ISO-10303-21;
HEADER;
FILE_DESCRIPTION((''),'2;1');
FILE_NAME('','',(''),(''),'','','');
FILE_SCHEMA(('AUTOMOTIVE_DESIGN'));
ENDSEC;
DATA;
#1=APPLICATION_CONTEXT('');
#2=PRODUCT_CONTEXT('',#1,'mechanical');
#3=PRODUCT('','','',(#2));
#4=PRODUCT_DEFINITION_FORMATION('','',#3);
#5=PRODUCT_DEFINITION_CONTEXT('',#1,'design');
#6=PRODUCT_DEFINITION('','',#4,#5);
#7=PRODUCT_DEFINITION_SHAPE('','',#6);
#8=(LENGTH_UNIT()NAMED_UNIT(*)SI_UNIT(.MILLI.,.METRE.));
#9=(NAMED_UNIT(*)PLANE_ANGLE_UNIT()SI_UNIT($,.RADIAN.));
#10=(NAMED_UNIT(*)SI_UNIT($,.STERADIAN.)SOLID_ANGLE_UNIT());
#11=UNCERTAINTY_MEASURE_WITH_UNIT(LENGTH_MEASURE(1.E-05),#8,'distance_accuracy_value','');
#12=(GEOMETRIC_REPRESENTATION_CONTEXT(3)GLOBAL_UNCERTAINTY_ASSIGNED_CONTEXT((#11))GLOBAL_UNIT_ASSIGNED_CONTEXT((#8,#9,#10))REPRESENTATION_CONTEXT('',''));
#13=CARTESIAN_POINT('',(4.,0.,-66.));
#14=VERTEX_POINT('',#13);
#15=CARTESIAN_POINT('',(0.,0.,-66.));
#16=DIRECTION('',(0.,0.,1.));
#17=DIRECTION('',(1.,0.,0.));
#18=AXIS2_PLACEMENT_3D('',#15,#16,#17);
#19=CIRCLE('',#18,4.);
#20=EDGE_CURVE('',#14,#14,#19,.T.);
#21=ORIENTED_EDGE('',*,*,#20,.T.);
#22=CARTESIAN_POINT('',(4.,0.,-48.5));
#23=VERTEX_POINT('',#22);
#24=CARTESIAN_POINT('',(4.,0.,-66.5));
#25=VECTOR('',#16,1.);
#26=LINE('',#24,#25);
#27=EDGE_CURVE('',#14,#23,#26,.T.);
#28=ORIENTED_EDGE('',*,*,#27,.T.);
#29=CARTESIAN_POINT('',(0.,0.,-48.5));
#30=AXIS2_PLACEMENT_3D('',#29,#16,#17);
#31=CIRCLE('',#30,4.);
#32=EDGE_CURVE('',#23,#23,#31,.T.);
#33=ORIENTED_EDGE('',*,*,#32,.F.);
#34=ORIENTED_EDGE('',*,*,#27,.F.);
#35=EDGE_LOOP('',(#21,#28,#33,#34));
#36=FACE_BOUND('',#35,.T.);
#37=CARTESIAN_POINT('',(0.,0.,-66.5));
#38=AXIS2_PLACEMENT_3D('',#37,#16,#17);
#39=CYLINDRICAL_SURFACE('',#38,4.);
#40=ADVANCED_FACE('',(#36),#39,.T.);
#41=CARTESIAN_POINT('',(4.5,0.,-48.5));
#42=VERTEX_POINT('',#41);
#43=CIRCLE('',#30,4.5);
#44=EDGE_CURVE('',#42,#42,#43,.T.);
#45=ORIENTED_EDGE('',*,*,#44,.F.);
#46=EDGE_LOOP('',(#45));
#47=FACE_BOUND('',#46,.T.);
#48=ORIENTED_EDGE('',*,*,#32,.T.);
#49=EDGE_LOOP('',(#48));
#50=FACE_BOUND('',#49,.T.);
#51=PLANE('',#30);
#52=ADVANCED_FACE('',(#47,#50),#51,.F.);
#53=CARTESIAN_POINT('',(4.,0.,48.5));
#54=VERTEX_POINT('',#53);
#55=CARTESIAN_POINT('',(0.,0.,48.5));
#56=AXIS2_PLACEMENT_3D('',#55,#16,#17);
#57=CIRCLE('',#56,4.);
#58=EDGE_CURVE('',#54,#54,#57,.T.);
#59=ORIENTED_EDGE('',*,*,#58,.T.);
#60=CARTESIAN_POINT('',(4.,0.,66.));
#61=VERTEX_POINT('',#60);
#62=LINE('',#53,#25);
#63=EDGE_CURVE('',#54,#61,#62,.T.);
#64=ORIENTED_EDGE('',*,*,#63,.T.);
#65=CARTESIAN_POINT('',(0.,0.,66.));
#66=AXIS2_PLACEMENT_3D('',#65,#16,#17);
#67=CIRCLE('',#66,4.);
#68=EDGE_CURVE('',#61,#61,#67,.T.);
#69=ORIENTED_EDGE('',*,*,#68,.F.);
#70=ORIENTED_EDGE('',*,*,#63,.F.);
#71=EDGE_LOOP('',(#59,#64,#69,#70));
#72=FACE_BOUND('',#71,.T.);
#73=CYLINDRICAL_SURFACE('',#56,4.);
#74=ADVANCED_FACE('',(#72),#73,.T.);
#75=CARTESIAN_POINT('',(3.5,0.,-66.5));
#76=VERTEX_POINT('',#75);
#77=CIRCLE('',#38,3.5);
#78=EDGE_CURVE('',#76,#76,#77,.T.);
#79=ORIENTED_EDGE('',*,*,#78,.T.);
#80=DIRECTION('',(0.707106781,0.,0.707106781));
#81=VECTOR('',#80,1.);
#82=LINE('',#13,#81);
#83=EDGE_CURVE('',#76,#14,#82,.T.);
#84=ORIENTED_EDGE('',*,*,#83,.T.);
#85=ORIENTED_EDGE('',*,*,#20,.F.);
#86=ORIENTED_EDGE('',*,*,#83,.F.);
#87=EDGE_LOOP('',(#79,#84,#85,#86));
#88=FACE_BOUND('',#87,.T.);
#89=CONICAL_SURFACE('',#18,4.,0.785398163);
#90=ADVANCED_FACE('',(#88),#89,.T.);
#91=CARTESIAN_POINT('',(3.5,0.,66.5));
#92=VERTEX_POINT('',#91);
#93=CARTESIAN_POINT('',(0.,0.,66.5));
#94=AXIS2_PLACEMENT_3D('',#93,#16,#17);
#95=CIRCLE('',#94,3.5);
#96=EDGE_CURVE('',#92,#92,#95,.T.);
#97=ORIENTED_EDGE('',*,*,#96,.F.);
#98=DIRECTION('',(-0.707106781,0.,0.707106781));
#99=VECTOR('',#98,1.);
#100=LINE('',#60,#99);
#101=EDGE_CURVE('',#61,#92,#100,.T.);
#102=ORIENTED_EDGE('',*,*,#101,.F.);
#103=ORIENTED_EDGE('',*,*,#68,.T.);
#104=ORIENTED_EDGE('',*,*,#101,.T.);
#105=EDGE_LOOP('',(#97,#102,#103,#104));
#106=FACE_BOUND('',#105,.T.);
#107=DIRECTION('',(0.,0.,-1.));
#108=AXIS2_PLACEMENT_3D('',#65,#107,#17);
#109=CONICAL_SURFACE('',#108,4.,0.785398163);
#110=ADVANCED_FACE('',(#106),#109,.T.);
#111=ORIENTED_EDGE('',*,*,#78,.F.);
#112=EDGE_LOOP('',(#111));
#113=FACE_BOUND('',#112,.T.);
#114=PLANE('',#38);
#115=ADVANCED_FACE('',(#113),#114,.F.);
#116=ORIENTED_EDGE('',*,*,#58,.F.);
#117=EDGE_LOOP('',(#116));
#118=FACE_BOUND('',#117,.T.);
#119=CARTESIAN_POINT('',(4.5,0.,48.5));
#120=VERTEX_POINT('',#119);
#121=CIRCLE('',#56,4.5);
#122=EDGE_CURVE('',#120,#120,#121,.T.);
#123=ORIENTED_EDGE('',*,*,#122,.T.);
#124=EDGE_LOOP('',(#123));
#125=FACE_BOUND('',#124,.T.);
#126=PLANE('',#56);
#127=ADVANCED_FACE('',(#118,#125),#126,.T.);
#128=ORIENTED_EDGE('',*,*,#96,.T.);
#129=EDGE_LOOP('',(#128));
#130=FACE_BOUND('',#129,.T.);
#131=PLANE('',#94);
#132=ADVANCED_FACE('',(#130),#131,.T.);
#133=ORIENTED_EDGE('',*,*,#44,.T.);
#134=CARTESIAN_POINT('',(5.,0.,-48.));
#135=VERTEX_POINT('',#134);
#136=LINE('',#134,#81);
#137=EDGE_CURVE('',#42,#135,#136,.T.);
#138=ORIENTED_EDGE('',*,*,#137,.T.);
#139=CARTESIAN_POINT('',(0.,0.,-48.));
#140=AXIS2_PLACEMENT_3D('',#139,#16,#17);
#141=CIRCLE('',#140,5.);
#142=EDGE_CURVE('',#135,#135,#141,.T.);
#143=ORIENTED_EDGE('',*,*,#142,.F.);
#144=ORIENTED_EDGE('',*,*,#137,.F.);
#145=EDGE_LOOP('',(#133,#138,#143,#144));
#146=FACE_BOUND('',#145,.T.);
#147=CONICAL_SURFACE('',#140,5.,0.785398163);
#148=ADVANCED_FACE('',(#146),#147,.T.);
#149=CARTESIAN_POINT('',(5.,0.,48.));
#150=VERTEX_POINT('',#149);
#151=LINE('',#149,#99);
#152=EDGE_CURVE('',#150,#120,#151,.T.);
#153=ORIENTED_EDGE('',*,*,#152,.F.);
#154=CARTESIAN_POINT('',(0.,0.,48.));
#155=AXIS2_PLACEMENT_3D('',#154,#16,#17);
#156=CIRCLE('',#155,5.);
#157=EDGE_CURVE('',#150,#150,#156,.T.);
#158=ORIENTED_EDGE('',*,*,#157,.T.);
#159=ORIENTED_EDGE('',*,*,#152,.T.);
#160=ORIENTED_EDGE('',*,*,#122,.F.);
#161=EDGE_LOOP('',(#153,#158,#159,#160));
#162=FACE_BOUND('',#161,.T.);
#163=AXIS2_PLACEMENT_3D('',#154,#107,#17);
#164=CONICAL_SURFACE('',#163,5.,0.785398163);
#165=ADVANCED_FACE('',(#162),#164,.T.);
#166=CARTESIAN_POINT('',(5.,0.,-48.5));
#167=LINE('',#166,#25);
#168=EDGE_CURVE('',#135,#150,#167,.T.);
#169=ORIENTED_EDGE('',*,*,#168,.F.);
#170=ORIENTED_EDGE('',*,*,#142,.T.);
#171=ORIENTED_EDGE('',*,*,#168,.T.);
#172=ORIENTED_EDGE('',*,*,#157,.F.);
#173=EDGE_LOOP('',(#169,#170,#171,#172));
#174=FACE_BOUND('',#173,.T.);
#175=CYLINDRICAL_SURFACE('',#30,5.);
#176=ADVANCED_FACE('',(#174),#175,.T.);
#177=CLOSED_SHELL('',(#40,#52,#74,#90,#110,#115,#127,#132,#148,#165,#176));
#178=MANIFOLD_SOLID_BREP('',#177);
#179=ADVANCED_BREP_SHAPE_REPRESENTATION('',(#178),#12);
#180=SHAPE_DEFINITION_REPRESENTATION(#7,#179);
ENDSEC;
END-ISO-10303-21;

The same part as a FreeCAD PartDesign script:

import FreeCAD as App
import Part
import Sketcher
from FreeCAD import Vector


def edges_at(feature, points):
    """Names of the edges that pass closest to the given points."""
    edges = feature.Shape.Edges
    near = lambda p: min(range(len(edges)), key=lambda i: edges[i].distToShape(Part.Vertex(*p))[0])
    return sorted({f"Edge{near(p) + 1}" for p in points})

doc = App.newDocument("Part")
params = doc.addObject("Spreadsheet::Sheet", "Params")
for row, (alias, value) in enumerate([
    ("sketch1_height", "18 mm"),
    ("sketch1_height2", "97 mm"),
    ("sketch1_width", "4 mm"),
    ("sketch1_width2", "1 mm"),
    ("revolution_angle", "360 deg"),
    ("chamfer_size", "0.5 mm"),
], start=1):
    params.set(f"A{row}", alias)
    params.set(f"B{row}", "=" + value)
    params.setAlias(f"B{row}", alias)

body = doc.addObject("PartDesign::Body", "Body")

# Sketch on XZ plane
sketch1 = body.newObject("Sketcher::SketchObject", "Sketch")
sketch1.AttachmentSupport = (doc.getObject("XZ_Plane"), [""])
sketch1.MapMode = "FlatFace"
sketch1.addGeometry(Part.LineSegment(Vector(0, -66.5, 0), Vector(0, 66.5, 0)), False)
sketch1.addGeometry(Part.LineSegment(Vector(0, 66.5, 0), Vector(4, 66.5, 0)), False)
sketch1.addGeometry(Part.LineSegment(Vector(4, 66.5, 0), Vector(4, 48.5, 0)), False)
sketch1.addGeometry(Part.LineSegment(Vector(4, 48.5, 0), Vector(5, 48.5, 0)), False)
sketch1.addGeometry(Part.LineSegment(Vector(5, 48.5, 0), Vector(5, -48.5, 0)), False)
sketch1.addGeometry(Part.LineSegment(Vector(5, -48.5, 0), Vector(4, -48.5, 0)), False)
sketch1.addGeometry(Part.LineSegment(Vector(4, -48.5, 0), Vector(4, -66.5, 0)), False)
sketch1.addGeometry(Part.LineSegment(Vector(4, -66.5, 0), Vector(0, -66.5, 0)), False)
sketch1.addConstraint(Sketcher.Constraint("Coincident", 0, 2, 1, 1))
sketch1.addConstraint(Sketcher.Constraint("Coincident", 1, 2, 2, 1))
sketch1.addConstraint(Sketcher.Constraint("Coincident", 2, 2, 3, 1))
sketch1.addConstraint(Sketcher.Constraint("Coincident", 3, 2, 4, 1))
sketch1.addConstraint(Sketcher.Constraint("Coincident", 4, 2, 5, 1))
sketch1.addConstraint(Sketcher.Constraint("Coincident", 5, 2, 6, 1))
sketch1.addConstraint(Sketcher.Constraint("Coincident", 6, 2, 7, 1))
sketch1.addConstraint(Sketcher.Constraint("Coincident", 7, 2, 0, 1))
sketch1.addConstraint(Sketcher.Constraint("Vertical", 0))
sketch1.addConstraint(Sketcher.Constraint("Horizontal", 1))
sketch1.addConstraint(Sketcher.Constraint("Vertical", 2))
sketch1.addConstraint(Sketcher.Constraint("Horizontal", 3))
sketch1.addConstraint(Sketcher.Constraint("Vertical", 4))
sketch1.addConstraint(Sketcher.Constraint("Horizontal", 5))
sketch1.addConstraint(Sketcher.Constraint("Vertical", 6))
sketch1.addConstraint(Sketcher.Constraint("Horizontal", 7))
sketch1.addConstraint(Sketcher.Constraint("Symmetric", 0, 2, 7, 2, -1, 1))
sketch1.addConstraint(Sketcher.Constraint("Symmetric", 2, 2, 5, 2, -1))
sketch1.addConstraint(Sketcher.Constraint("DistanceY", 2, 2, 2, 1, 18.0))
sketch1.addConstraint(Sketcher.Constraint("DistanceY", 4, 2, 4, 1, 97.0))
sketch1.addConstraint(Sketcher.Constraint("DistanceX", 1, 1, 1, 2, 4.0))
sketch1.addConstraint(Sketcher.Constraint("DistanceX", 3, 1, 3, 2, 1.0))
sketch1.setExpression("Constraints[18]", "Params.sketch1_height")
sketch1.setExpression("Constraints[19]", "Params.sketch1_height2")
sketch1.setExpression("Constraints[20]", "Params.sketch1_width")
sketch1.setExpression("Constraints[21]", "Params.sketch1_width2")
revolution = body.newObject("PartDesign::Revolution", "Revolution")
revolution.Profile = sketch1
revolution.ReferenceAxis = (sketch1, ["V_Axis"])
revolution.setExpression("Angle", "Params.revolution_angle")
doc.recompute()

chamfer = body.newObject("PartDesign::Chamfer", "Chamfer")
chamfer.Base = (revolution, edges_at(revolution, [
    (-4, 0, -66.5),
    (-4, 0, 66.5),
    (-5, 0, 48.5),
    (-5, 0, -48.5),
]))
chamfer.setExpression("Size", "Params.chamfer_size")

doc.recompute()
